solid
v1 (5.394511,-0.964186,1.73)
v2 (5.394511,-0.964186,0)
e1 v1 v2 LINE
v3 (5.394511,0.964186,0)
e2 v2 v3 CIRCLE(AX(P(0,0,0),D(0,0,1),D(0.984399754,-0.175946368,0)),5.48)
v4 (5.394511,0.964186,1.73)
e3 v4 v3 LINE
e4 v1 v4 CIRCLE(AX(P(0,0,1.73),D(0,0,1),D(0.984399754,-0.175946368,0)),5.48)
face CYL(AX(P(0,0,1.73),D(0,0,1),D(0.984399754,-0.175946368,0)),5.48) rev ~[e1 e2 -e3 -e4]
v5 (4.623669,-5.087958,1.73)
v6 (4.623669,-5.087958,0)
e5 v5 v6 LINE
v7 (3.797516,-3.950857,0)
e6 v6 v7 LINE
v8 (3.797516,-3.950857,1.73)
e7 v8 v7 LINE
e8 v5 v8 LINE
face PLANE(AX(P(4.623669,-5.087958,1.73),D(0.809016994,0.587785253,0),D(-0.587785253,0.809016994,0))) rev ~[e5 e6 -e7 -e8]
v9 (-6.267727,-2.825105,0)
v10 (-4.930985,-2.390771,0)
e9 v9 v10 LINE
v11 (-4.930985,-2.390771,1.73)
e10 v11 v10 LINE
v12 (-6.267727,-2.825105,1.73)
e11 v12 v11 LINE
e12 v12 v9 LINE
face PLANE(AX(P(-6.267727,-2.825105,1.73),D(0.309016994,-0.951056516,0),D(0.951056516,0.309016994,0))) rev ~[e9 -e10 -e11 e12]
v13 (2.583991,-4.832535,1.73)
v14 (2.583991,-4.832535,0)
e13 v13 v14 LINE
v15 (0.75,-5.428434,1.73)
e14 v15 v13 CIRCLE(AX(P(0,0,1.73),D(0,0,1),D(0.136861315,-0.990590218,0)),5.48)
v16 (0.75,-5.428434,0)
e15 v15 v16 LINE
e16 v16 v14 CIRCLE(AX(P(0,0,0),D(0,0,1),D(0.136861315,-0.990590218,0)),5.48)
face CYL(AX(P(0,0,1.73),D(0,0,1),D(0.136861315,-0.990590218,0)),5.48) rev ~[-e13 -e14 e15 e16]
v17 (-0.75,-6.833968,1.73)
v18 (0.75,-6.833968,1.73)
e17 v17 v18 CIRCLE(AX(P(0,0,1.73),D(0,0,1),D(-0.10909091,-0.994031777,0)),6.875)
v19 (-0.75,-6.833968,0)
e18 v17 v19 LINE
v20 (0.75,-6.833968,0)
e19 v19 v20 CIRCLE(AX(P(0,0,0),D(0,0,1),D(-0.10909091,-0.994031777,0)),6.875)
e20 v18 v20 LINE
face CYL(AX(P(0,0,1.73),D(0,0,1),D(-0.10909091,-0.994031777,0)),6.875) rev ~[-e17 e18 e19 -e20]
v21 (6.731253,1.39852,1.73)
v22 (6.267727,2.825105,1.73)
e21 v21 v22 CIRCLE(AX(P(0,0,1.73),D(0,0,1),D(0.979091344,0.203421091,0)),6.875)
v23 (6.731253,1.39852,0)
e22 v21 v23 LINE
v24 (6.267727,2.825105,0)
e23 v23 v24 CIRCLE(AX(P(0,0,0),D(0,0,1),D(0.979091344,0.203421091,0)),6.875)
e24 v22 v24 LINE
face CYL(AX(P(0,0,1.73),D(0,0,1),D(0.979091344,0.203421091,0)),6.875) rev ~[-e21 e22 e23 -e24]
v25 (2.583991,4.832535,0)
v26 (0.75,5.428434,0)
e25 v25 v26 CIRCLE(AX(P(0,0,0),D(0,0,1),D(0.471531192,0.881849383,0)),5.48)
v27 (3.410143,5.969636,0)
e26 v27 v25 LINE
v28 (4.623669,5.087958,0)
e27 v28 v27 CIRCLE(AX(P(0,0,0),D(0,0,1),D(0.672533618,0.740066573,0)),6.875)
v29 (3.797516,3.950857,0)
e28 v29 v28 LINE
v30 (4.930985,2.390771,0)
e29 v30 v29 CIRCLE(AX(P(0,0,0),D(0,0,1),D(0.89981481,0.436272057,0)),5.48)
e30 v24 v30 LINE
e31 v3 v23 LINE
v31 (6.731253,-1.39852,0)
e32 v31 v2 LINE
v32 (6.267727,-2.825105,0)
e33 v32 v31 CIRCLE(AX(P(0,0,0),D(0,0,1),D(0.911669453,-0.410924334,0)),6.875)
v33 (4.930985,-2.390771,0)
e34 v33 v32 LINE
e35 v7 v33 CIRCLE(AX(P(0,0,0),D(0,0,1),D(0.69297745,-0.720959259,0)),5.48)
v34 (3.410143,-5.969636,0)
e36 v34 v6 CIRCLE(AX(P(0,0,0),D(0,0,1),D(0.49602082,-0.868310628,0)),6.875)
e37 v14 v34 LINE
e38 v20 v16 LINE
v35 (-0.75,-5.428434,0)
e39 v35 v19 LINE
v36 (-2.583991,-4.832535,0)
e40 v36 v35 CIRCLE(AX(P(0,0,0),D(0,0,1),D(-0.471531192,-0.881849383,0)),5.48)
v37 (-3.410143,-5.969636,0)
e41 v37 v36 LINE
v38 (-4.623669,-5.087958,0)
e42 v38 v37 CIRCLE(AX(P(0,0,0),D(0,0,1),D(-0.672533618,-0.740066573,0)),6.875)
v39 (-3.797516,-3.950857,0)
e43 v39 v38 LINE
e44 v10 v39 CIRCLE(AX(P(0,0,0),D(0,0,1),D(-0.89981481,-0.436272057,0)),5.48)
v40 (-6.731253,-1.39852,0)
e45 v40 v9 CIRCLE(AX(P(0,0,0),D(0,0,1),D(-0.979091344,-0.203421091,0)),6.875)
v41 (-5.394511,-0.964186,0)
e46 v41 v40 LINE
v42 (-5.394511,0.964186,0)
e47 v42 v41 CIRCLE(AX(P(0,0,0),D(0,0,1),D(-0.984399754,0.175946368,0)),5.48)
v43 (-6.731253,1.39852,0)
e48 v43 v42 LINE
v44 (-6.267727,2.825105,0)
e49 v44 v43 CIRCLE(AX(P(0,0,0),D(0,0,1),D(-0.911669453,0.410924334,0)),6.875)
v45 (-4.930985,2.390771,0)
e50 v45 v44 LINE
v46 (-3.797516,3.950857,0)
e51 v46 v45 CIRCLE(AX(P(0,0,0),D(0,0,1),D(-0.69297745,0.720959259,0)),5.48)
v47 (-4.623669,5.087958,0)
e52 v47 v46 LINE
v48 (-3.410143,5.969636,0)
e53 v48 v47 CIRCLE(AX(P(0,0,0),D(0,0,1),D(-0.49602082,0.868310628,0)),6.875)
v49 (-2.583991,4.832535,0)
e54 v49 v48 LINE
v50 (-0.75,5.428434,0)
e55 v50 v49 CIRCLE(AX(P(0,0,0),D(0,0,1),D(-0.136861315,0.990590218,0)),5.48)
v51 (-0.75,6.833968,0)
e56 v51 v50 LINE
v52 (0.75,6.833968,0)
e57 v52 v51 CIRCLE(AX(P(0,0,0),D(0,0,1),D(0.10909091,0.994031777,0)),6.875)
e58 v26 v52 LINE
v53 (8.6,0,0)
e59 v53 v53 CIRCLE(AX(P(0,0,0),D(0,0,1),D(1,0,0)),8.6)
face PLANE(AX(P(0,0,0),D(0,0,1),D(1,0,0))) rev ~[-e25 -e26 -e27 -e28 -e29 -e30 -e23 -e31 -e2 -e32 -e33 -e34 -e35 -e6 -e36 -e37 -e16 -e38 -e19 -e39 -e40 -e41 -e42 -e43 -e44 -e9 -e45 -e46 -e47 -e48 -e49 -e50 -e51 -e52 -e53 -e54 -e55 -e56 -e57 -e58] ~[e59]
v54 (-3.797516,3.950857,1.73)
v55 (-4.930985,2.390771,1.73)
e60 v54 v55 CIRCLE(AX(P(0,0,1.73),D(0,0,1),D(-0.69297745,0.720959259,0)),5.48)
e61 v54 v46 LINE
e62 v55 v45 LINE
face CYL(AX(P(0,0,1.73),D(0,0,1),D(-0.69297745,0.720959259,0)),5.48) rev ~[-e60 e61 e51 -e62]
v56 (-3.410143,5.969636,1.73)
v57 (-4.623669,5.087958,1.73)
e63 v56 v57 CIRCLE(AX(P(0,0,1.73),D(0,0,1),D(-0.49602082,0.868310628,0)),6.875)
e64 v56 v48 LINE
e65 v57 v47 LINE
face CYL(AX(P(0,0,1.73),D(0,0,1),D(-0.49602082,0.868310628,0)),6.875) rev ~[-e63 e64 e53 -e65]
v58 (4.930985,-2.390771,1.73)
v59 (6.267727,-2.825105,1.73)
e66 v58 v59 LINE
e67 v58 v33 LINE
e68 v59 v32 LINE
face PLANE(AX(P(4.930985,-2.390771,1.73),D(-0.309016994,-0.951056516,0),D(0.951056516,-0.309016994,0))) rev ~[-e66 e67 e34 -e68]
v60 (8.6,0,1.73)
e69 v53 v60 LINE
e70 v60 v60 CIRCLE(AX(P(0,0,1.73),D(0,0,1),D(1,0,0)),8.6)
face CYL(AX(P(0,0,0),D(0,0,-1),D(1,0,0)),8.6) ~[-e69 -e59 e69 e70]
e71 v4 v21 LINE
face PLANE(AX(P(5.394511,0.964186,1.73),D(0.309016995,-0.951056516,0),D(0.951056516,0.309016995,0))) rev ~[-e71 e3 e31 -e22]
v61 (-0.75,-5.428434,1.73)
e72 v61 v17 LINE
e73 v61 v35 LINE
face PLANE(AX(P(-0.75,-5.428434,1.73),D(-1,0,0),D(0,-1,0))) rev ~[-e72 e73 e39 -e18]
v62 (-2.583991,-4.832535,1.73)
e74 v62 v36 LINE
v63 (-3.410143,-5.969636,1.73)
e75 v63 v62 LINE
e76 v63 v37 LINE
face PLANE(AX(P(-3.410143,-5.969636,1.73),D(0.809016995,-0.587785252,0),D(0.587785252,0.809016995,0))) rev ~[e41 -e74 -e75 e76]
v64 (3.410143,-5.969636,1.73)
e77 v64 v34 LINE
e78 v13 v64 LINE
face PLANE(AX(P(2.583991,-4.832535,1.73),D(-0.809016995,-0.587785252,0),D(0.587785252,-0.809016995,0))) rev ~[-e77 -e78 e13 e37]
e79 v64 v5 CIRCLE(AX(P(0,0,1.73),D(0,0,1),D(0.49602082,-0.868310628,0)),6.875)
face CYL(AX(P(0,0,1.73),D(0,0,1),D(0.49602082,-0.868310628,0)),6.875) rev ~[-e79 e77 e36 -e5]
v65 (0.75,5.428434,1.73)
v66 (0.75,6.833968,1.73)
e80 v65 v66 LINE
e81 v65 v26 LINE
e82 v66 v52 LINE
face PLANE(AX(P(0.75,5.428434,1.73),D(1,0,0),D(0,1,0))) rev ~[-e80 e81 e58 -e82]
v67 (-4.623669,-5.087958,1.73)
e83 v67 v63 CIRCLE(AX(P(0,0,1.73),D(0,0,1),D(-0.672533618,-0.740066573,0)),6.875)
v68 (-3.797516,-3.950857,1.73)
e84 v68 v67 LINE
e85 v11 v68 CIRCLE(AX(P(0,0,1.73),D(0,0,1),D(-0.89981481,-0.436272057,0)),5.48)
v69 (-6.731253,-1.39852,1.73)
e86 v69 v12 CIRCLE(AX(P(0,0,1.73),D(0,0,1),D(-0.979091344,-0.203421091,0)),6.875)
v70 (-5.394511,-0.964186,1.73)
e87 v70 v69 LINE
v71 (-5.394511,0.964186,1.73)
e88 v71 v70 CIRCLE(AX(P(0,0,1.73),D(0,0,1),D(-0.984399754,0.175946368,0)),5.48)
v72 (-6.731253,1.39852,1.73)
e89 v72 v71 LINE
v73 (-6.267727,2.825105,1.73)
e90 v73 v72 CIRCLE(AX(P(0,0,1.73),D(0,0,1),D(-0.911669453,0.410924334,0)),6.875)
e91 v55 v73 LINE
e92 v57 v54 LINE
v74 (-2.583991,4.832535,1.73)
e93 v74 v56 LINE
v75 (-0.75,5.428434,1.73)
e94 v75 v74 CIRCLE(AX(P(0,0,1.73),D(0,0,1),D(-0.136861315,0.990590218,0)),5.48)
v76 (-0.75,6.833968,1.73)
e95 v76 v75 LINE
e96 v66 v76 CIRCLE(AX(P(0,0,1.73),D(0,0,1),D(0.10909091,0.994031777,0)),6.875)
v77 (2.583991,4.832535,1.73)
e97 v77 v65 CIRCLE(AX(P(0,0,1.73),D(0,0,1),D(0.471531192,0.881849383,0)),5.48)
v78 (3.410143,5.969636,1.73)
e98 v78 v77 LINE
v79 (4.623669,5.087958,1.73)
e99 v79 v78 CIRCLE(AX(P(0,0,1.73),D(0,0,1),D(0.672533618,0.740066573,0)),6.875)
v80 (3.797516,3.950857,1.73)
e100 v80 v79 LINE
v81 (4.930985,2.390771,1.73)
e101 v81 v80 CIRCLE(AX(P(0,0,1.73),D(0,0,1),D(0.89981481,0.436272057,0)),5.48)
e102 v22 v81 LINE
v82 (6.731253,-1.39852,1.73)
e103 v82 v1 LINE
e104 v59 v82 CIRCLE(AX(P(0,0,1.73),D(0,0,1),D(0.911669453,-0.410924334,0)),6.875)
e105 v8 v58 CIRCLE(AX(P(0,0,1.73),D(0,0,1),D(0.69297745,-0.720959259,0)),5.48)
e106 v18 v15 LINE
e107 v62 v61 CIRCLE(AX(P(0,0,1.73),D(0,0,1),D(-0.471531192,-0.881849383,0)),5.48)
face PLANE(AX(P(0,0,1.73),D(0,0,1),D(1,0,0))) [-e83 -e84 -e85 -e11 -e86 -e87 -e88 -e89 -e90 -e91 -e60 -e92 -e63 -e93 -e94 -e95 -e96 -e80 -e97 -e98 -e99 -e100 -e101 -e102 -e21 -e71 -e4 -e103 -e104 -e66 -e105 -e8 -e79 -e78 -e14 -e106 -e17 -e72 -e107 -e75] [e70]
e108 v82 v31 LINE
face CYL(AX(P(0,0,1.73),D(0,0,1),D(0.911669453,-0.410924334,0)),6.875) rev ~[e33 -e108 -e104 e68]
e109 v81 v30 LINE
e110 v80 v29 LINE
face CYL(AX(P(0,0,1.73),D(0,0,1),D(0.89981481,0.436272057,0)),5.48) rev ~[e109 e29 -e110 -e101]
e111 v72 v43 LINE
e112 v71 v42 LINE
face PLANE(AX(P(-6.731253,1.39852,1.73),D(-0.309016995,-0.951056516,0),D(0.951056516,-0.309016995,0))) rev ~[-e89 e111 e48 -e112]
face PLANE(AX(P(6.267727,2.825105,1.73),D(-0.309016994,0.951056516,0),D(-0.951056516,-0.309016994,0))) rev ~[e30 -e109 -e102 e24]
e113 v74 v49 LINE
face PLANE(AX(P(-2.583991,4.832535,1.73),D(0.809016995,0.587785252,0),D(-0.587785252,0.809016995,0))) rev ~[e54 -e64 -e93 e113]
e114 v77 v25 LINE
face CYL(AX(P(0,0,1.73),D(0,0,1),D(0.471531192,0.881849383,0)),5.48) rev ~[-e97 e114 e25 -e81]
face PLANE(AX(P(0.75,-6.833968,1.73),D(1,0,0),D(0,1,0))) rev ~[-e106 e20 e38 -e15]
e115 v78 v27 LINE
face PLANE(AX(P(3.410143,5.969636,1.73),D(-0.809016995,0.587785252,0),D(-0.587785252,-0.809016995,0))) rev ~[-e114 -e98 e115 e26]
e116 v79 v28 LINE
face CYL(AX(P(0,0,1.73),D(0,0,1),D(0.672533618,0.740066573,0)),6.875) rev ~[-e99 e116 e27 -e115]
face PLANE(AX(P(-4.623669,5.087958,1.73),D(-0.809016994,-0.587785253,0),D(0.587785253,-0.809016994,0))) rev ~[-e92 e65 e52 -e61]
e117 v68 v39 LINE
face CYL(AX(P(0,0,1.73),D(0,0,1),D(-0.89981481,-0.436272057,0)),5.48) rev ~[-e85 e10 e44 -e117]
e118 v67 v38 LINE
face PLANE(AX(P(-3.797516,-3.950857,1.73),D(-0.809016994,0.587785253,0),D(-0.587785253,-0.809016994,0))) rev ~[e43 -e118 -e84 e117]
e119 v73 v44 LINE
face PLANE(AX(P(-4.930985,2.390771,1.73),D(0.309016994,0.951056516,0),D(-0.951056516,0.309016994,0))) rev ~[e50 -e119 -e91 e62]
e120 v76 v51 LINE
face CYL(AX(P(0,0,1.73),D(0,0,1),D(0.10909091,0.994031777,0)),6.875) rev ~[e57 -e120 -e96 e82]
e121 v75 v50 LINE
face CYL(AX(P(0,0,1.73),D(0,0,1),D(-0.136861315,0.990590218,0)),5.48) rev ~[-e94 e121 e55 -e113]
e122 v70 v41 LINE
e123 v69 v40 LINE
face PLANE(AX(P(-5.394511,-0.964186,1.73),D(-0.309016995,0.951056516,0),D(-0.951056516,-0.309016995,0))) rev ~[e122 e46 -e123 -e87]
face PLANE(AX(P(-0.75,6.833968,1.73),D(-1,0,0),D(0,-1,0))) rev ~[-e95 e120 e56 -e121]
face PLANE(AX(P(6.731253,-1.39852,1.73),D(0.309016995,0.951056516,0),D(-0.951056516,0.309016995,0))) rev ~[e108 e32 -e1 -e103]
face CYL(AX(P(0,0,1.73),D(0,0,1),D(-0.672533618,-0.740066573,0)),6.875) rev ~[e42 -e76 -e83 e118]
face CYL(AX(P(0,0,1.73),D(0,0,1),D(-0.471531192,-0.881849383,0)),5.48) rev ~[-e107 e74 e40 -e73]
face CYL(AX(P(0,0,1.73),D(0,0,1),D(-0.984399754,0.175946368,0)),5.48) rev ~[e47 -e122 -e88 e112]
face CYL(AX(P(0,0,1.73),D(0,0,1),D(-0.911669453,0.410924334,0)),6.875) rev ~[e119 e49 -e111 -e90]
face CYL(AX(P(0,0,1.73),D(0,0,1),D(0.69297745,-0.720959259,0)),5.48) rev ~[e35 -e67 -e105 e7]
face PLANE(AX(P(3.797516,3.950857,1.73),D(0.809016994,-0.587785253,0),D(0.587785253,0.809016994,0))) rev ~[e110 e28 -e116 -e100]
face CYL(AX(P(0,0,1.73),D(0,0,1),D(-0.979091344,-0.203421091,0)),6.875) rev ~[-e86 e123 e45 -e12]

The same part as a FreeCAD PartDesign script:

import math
import FreeCAD as App
import Part
import Sketcher
Q = App.Units.Quantity

doc = App.newDocument("Part")
body = doc.addObject("PartDesign::Body", "Body")

# Sketch on XY plane
sketch1 = body.newObject("Sketcher::SketchObject", "Sketch")
sketch1.AttachmentSupport = (doc.getObject("XY_Plane"), [""])
sketch1.MapMode = "FlatFace"
sketch1.addGeometry(Part.Circle(App.Vector(0, 0, 0), App.Vector(0, 0, 1), 9), False)
sketch1.addConstraint([
    Sketcher.Constraint("Coincident", 0, 3, -1, 1),
    Sketcher.Constraint("Diameter", 0, 17.2),
])
pad1 = body.newObject("PartDesign::Pad", "Pad")
pad1.Profile = sketch1
pad1.Length = 1.73

# Sketch on XY plane
sketch2 = body.newObject("Sketcher::SketchObject", "Sketch001")
sketch2.AttachmentSupport = (doc.getObject("XY_Plane"), [""])
sketch2.MapMode = "FlatFace"
sketch2.AttachmentOffset = App.Placement(App.Vector(0, 0, 1.73), App.Rotation())
sketch2.addGeometry([
    Part.LineSegment(App.Vector(-2.6, 4.8, 0), App.Vector(-3.4, 6, 0)),  # 0
    Part.ArcOfCircle(Part.Circle(App.Vector(0, 0, 0), App.Vector(0, 0, 1), 6.9), math.radians(119.74), math.radians(132.26)),  # 1
    Part.LineSegment(App.Vector(-4.6, 5.1, 0), App.Vector(-3.8, 4, 0)),  # 2
    Part.ArcOfCircle(Part.Circle(App.Vector(0, 0, 0), App.Vector(0, 0, 1), 5.5), math.radians(134), math.radians(154)),  # 3
    Part.LineSegment(App.Vector(-4.9, 2.4, 0), App.Vector(-6.3, 2.8, 0)),  # 4
    Part.ArcOfCircle(Part.Circle(App.Vector(0, 0, 0), App.Vector(0, 0, 1), 6.9), math.radians(155.74), math.radians(168.26)),  # 5
    Part.LineSegment(App.Vector(-6.7, 1.4, 0), App.Vector(-5.4, 1, 0)),  # 6
    Part.ArcOfCircle(Part.Circle(App.Vector(0, 0, 0), App.Vector(0, 0, 1), 5.5), math.radians(170), math.radians(190)),  # 7
    Part.LineSegment(App.Vector(-5.4, -1, 0), App.Vector(-6.7, -1.4, 0)),  # 8
    Part.ArcOfCircle(Part.Circle(App.Vector(0, 0, 0), App.Vector(0, 0, 1), 6.9), math.radians(-168.26), math.radians(-155.74)),  # 9
    Part.LineSegment(App.Vector(-6.3, -2.8, 0), App.Vector(-4.9, -2.4, 0)),  # 10
    Part.ArcOfCircle(Part.Circle(App.Vector(0, 0, 0), App.Vector(0, 0, 1), 5.5), math.radians(-154), math.radians(-134)),  # 11
    Part.LineSegment(App.Vector(-3.8, -4, 0), App.Vector(-4.6, -5.1, 0)),  # 12
    Part.ArcOfCircle(Part.Circle(App.Vector(0, 0, 0), App.Vector(0, 0, 1), 6.9), math.radians(-132.26), math.radians(-119.74)),  # 13
    Part.LineSegment(App.Vector(-3.4, -6, 0), App.Vector(-2.6, -4.8, 0)),  # 14
    Part.ArcOfCircle(Part.Circle(App.Vector(0, 0, 0), App.Vector(0, 0, 1), 5.5), math.radians(-118), math.radians(-98)),  # 15
    Part.LineSegment(App.Vector(-0.8, -5.4, 0), App.Vector(-0.8, -6.8, 0)),  # 16
    Part.ArcOfCircle(Part.Circle(App.Vector(0, 0, 0), App.Vector(0, 0, 1), 6.9), math.radians(-96.26), math.radians(-83.74)),  # 17
    Part.LineSegment(App.Vector(0.8, -6.8, 0), App.Vector(0.8, -5.4, 0)),  # 18
    Part.ArcOfCircle(Part.Circle(App.Vector(0, 0, 0), App.Vector(0, 0, 1), 5.5), math.radians(-82), math.radians(-62)),  # 19
    Part.LineSegment(App.Vector(2.6, -4.8, 0), App.Vector(3.4, -6, 0)),  # 20
    Part.ArcOfCircle(Part.Circle(App.Vector(0, 0, 0), App.Vector(0, 0, 1), 6.9), math.radians(-60.26), math.radians(-47.74)),  # 21
    Part.LineSegment(App.Vector(4.6, -5.1, 0), App.Vector(3.8, -4, 0)),  # 22
    Part.ArcOfCircle(Part.Circle(App.Vector(0, 0, 0), App.Vector(0, 0, 1), 5.5), math.radians(-46), math.radians(-26)),  # 23
    Part.LineSegment(App.Vector(4.9, -2.4, 0), App.Vector(6.3, -2.8, 0)),  # 24
    Part.ArcOfCircle(Part.Circle(App.Vector(0, 0, 0), App.Vector(0, 0, 1), 6.9), math.radians(-24.26), math.radians(-11.74)),  # 25
    Part.LineSegment(App.Vector(6.7, -1.4, 0), App.Vector(5.4, -1, 0)),  # 26
    Part.ArcOfCircle(Part.Circle(App.Vector(0, 0, 0), App.Vector(0, 0, 1), 5.5), math.radians(-10), math.radians(10)),  # 27
    Part.LineSegment(App.Vector(5.4, 1, 0), App.Vector(6.7, 1.4, 0)),  # 28
    Part.ArcOfCircle(Part.Circle(App.Vector(0, 0, 0), App.Vector(0, 0, 1), 6.9), math.radians(11.74), math.radians(24.26)),  # 29
    Part.LineSegment(App.Vector(6.3, 2.8, 0), App.Vector(4.9, 2.4, 0)),  # 30
    Part.ArcOfCircle(Part.Circle(App.Vector(0, 0, 0), App.Vector(0, 0, 1), 5.5), math.radians(26), math.radians(46)),  # 31
    Part.LineSegment(App.Vector(3.8, 4, 0), App.Vector(4.6, 5.1, 0)),  # 32
    Part.ArcOfCircle(Part.Circle(App.Vector(0, 0, 0), App.Vector(0, 0, 1), 6.9), math.radians(47.74), math.radians(60.26)),  # 33
    Part.LineSegment(App.Vector(3.4, 6, 0), App.Vector(2.6, 4.8, 0)),  # 34
    Part.ArcOfCircle(Part.Circle(App.Vector(0, 0, 0), App.Vector(0, 0, 1), 5.5), math.radians(62), math.radians(82)),  # 35
    Part.LineSegment(App.Vector(0.8, 5.4, 0), App.Vector(0.8, 6.8, 0)),  # 36
    Part.ArcOfCircle(Part.Circle(App.Vector(0, 0, 0), App.Vector(0, 0, 1), 6.9), math.radians(83.74), math.radians(96.26)),  # 37
    Part.LineSegment(App.Vector(-0.8, 6.8, 0), App.Vector(-0.8, 5.4, 0)),  # 38
    Part.ArcOfCircle(Part.Circle(App.Vector(0, 0, 0), App.Vector(0, 0, 1), 5.5), math.radians(98), math.radians(118)),  # 39
], False)
sketch2.addConstraint([
    Sketcher.Constraint("Coincident", 0, 2, 1, 1),
    Sketcher.Constraint("Coincident", 1, 2, 2, 1),
    Sketcher.Constraint("Coincident", 2, 2, 3, 1),
    Sketcher.Constraint("Coincident", 3, 2, 4, 1),
    Sketcher.Constraint("Coincident", 4, 2, 5, 1),
    Sketcher.Constraint("Coincident", 5, 2, 6, 1),
    Sketcher.Constraint("Coincident", 6, 2, 7, 1),
    Sketcher.Constraint("Coincident", 7, 2, 8, 1),
    Sketcher.Constraint("Coincident", 8, 2, 9, 1),
    Sketcher.Constraint("Coincident", 9, 2, 10, 1),
    Sketcher.Constraint("Coincident", 10, 2, 11, 1),
    Sketcher.Constraint("Coincident", 11, 2, 12, 1),
    Sketcher.Constraint("Coincident", 12, 2, 13, 1),
    Sketcher.Constraint("Coincident", 13, 2, 14, 1),
    Sketcher.Constraint("Coincident", 14, 2, 15, 1),
    Sketcher.Constraint("Coincident", 15, 2, 16, 1),
    Sketcher.Constraint("Coincident", 16, 2, 17, 1),
    Sketcher.Constraint("Coincident", 17, 2, 18, 1),
    Sketcher.Constraint("Coincident", 18, 2, 19, 1),
    Sketcher.Constraint("Coincident", 19, 2, 20, 1),
    Sketcher.Constraint("Coincident", 20, 2, 21, 1),
    Sketcher.Constraint("Coincident", 21, 2, 22, 1),
    Sketcher.Constraint("Coincident", 22, 2, 23, 1),
    Sketcher.Constraint("Coincident", 23, 2, 24, 1),
    Sketcher.Constraint("Coincident", 24, 2, 25, 1),
    Sketcher.Constraint("Coincident", 25, 2, 26, 1),
    Sketcher.Constraint("Coincident", 26, 2, 27, 1),
    Sketcher.Constraint("Coincident", 27, 2, 28, 1),
    Sketcher.Constraint("Coincident", 28, 2, 29, 1),
    Sketcher.Constraint("Coincident", 29, 2, 30, 1),
    Sketcher.Constraint("Coincident", 30, 2, 31, 1),
    Sketcher.Constraint("Coincident", 31, 2, 32, 1),
    Sketcher.Constraint("Coincident", 32, 2, 33, 1),
    Sketcher.Constraint("Coincident", 33, 2, 34, 1),
    Sketcher.Constraint("Coincident", 34, 2, 35, 1),
    Sketcher.Constraint("Coincident", 35, 2, 36, 1),
    Sketcher.Constraint("Coincident", 36, 2, 37, 1),
    Sketcher.Constraint("Coincident", 37, 2, 38, 1),
    Sketcher.Constraint("Coincident", 38, 2, 39, 1),
    Sketcher.Constraint("Coincident", 39, 2, 0, 1),
    Sketcher.Constraint("Vertical", 16),
    Sketcher.Constraint("Vertical", 18),
    Sketcher.Constraint("Vertical", 36),
    Sketcher.Constraint("Vertical", 38),
    Sketcher.Constraint("Coincident", 1, 3, -1, 1),
    Sketcher.Constraint("Coincident", 3, 3, -1, 1),
    Sketcher.Constraint("Coincident", 5, 3, -1, 1),
    Sketcher.Constraint("Coincident", 7, 3, -1, 1),
    Sketcher.Constraint("Coincident", 9, 3, -1, 1),
    Sketcher.Constraint("Coincident", 11, 3, -1, 1),
    Sketcher.Constraint("Coincident", 13, 3, -1, 1),
    Sketcher.Constraint("Coincident", 15, 3, -1, 1),
    Sketcher.Constraint("Coincident", 17, 3, -1, 1),
    Sketcher.Constraint("Coincident", 19, 3, -1, 1),
    Sketcher.Constraint("Coincident", 21, 3, -1, 1),
    Sketcher.Constraint("Coincident", 23, 3, -1, 1),
    Sketcher.Constraint("Coincident", 25, 3, -1, 1),
    Sketcher.Constraint("Coincident", 27, 3, -1, 1),
    Sketcher.Constraint("Coincident", 29, 3, -1, 1),
    Sketcher.Constraint("Coincident", 31, 3, -1, 1),
    Sketcher.Constraint("Coincident", 33, 3, -1, 1),
    Sketcher.Constraint("Coincident", 35, 3, -1, 1),
    Sketcher.Constraint("Coincident", 37, 3, -1, 1),
    Sketcher.Constraint("Coincident", 39, 3, -1, 1),
    Sketcher.Constraint("Equal", 1, 5),
    Sketcher.Constraint("Equal", 3, 7),
    Sketcher.Constraint("Equal", 5, 9),
    Sketcher.Constraint("Equal", 7, 11),
    Sketcher.Constraint("Equal", 9, 13),
    Sketcher.Constraint("Equal", 11, 15),
    Sketcher.Constraint("Equal", 13, 17),
    Sketcher.Constraint("Equal", 15, 19),
    Sketcher.Constraint("Equal", 17, 21),
    Sketcher.Constraint("Equal", 19, 23),
    Sketcher.Constraint("Equal", 21, 25),
    Sketcher.Constraint("Equal", 23, 27),
    Sketcher.Constraint("Equal", 25, 29),
    Sketcher.Constraint("Equal", 27, 31),
    Sketcher.Constraint("Equal", 29, 33),
    Sketcher.Constraint("Equal", 31, 35),
    Sketcher.Constraint("Equal", 33, 37),
    Sketcher.Constraint("Equal", 35, 39),
    Sketcher.Constraint("Parallel", 0, 2),
    Sketcher.Constraint("Parallel", 4, 6),
    Sketcher.Constraint("Parallel", 8, 10),
    Sketcher.Constraint("Parallel", 12, 14),
    Sketcher.Constraint("Parallel", 2, 20),
    Sketcher.Constraint("Parallel", 20, 22),
    Sketcher.Constraint("Parallel", 6, 24),
    Sketcher.Constraint("Parallel", 24, 26),
    Sketcher.Constraint("Parallel", 10, 28),
    Sketcher.Constraint("Parallel", 28, 30),
    Sketcher.Constraint("Parallel", 14, 32),
    Sketcher.Constraint("Parallel", 32, 34),
    Sketcher.Constraint("Horizontal", 16, 2, 17, 2),
    Sketcher.Constraint("Horizontal", 14, 2, 19, 2),
    Sketcher.Constraint("Horizontal", 13, 2, 20, 2),
    Sketcher.Constraint("Horizontal", 12, 2, 21, 2),
    Sketcher.Constraint("Horizontal", 10, 2, 23, 2),
    Sketcher.Constraint("Horizontal", 9, 2, 24, 2),
    Sketcher.Constraint("Horizontal", 8, 2, 25, 2),
    Sketcher.Constraint("Horizontal", 6, 2, 27, 2),
    Sketcher.Constraint("Horizontal", 4, 2, 29, 2),
    Sketcher.Constraint("Horizontal", 2, 2, 31, 2),
    Sketcher.Constraint("Horizontal", 0, 2, 33, 2),
    Sketcher.Constraint("Horizontal", 36, 2, 37, 2),
    Sketcher.Constraint("Vertical", 6, 2, 7, 2),
    Sketcher.Constraint("Vertical", 4, 2, 9, 2),
    Sketcher.Constraint("Vertical", 2, 2, 11, 2),
    Sketcher.Constraint("Vertical", 0, 2, 13, 2),
    Sketcher.Constraint("Vertical", 18, 2, 35, 2),
    Sketcher.Constraint("Equal", 0, 2),
    Sketcher.Constraint("Equal", 2, 4),
    Sketcher.Constraint("Equal", 4, 6),
    Sketcher.Constraint("Angle", 0, Q("126 deg")),
    Sketcher.Constraint("Angle", 4, Q("162 deg")),
    Sketcher.Constraint("Radius", 3, 5.48),
    Sketcher.Constraint("Radius", 1, 6.875),
    Sketcher.Constraint("DistanceX", 16, 2, 17, 2, 1.5),
    Sketcher.Constraint("DistanceY", 15, 2, 14, 2, 0.5959),
])
pocket1 = body.newObject("PartDesign::Pocket", "Pocket")
pocket1.Profile = sketch2
pocket1.Length = 1.73

doc.recompute()
